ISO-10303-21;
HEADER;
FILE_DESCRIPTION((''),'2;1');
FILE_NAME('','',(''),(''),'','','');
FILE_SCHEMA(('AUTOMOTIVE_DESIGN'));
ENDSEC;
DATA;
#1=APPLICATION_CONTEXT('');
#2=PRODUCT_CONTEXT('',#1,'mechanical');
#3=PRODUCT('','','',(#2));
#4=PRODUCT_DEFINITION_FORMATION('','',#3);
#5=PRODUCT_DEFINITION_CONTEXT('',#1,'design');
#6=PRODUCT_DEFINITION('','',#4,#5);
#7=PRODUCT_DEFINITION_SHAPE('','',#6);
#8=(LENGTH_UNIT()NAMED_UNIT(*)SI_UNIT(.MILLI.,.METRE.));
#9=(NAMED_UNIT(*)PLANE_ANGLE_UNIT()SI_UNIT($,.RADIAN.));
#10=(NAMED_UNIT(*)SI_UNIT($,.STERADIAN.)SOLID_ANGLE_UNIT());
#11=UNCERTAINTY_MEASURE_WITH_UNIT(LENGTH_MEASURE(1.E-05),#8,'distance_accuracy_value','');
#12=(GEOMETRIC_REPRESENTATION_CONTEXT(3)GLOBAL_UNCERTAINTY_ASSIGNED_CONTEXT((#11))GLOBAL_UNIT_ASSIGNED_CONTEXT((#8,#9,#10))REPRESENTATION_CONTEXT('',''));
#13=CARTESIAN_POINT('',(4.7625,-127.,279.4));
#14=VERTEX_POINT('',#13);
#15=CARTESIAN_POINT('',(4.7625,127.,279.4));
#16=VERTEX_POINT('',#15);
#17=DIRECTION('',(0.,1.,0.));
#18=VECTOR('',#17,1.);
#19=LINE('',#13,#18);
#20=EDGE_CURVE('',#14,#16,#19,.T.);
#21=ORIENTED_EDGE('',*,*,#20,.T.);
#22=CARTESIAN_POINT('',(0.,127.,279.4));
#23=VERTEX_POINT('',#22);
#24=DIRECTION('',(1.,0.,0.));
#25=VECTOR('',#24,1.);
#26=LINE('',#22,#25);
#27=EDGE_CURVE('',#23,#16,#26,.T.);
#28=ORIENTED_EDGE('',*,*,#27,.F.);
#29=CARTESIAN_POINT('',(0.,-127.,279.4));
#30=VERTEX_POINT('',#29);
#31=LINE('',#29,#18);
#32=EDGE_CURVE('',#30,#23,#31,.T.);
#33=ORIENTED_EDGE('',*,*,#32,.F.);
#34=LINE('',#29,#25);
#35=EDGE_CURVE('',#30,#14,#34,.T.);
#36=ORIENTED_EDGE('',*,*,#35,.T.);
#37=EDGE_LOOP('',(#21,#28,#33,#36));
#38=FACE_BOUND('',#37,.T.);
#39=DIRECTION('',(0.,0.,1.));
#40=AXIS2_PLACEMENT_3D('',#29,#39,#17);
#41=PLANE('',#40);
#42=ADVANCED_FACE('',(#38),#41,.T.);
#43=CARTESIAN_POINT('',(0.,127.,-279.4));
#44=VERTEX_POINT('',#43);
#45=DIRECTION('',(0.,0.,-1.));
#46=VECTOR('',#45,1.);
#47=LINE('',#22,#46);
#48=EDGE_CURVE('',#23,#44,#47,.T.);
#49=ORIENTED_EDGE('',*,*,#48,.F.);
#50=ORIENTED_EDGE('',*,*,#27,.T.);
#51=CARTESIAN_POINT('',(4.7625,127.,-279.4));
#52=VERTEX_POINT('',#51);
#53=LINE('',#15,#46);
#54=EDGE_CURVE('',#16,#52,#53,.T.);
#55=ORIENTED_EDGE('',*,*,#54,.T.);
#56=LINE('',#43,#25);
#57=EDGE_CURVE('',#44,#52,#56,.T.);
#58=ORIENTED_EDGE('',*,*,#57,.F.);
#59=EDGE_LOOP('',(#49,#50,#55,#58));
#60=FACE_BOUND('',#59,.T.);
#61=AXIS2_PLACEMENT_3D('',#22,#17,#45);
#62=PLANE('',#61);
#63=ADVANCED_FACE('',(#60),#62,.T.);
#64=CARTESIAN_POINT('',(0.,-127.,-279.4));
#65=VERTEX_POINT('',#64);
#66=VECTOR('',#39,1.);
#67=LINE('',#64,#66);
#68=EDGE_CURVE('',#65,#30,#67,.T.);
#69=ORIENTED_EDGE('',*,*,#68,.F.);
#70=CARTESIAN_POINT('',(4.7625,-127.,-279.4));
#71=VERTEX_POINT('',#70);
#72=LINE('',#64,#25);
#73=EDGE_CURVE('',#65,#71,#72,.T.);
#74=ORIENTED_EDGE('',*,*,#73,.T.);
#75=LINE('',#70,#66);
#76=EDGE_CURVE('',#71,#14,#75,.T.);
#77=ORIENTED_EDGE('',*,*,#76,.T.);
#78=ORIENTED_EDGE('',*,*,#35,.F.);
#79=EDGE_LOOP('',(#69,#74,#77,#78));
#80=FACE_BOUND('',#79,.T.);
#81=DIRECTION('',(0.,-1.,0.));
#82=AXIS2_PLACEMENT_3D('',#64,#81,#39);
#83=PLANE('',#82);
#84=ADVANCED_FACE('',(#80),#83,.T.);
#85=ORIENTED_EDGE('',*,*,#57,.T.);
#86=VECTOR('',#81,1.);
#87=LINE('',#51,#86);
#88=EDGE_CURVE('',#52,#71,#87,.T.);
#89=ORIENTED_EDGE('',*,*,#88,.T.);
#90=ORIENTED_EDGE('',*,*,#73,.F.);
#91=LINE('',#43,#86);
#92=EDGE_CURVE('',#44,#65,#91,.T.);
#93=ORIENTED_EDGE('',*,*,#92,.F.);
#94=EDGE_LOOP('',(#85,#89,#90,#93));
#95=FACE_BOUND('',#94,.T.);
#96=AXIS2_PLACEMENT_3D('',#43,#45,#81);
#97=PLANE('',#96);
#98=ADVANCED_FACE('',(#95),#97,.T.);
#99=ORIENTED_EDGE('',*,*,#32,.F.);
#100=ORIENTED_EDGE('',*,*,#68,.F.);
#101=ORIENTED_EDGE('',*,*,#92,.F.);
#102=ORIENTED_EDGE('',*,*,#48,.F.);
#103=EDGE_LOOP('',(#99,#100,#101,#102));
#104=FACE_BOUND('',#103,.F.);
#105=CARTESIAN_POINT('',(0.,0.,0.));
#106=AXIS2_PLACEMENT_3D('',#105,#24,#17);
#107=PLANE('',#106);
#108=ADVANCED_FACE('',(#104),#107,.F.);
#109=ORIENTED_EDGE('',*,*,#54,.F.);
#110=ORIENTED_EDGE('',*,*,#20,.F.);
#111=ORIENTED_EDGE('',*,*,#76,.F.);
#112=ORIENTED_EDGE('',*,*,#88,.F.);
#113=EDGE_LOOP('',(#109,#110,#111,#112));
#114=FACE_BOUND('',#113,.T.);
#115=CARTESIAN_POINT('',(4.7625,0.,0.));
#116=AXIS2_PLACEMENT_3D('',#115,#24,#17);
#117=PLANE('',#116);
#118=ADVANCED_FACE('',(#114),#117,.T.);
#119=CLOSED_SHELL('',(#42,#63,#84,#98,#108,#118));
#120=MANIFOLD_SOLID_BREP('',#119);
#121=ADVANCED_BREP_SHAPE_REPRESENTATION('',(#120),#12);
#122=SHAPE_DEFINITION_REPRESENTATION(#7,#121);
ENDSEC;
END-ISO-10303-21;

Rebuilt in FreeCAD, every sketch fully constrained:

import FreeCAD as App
import Part
import Sketcher
from FreeCAD import Vector
Q = App.Units.Quantity

doc = App.newDocument("Part")
body = doc.addObject("PartDesign::Body", "Body")

sketch1 = body.newObject("Sketcher::SketchObject", "Sketch")
sketch1.AttachmentSupport = (doc.getObject("YZ_Plane"), [""])
sketch1.MapMode = "FlatFace"
sketch1.addGeometry([
    Part.LineSegment(Vector(127, 279, 0), Vector(-127, 279, 0)),
    Part.LineSegment(Vector(-127, 279, 0), Vector(-127, -279, 0)),
    Part.LineSegment(Vector(-127, -279, 0), Vector(127, -279, 0)),
    Part.LineSegment(Vector(127, -279, 0), Vector(127, 279, 0)),
], False)
sketch1.addConstraint([
    Sketcher.Constraint("Coincident", 0, 2, 1, 1),
    Sketcher.Constraint("Coincident", 1, 2, 2, 1),
    Sketcher.Constraint("Coincident", 2, 2, 3, 1),
    Sketcher.Constraint("Coincident", 3, 2, 0, 1),
    Sketcher.Constraint("Horizontal", 0),
    Sketcher.Constraint("Vertical", 1),
    Sketcher.Constraint("Horizontal", 2),
    Sketcher.Constraint("Vertical", 3),
    Sketcher.Constraint("Symmetric", 0, 2, 2, 2, -1, 1),
    Sketcher.Constraint("DistanceX", 0, 2, 0, 1, Q("10 in")),
    Sketcher.Constraint("DistanceY", 1, 2, 1, 1, Q("22 in")),
])
pad1 = body.newObject("PartDesign::Pad", "Pad")
pad1.Profile = sketch1
pad1.Length = Q("0.1875 in")

doc.recompute()
